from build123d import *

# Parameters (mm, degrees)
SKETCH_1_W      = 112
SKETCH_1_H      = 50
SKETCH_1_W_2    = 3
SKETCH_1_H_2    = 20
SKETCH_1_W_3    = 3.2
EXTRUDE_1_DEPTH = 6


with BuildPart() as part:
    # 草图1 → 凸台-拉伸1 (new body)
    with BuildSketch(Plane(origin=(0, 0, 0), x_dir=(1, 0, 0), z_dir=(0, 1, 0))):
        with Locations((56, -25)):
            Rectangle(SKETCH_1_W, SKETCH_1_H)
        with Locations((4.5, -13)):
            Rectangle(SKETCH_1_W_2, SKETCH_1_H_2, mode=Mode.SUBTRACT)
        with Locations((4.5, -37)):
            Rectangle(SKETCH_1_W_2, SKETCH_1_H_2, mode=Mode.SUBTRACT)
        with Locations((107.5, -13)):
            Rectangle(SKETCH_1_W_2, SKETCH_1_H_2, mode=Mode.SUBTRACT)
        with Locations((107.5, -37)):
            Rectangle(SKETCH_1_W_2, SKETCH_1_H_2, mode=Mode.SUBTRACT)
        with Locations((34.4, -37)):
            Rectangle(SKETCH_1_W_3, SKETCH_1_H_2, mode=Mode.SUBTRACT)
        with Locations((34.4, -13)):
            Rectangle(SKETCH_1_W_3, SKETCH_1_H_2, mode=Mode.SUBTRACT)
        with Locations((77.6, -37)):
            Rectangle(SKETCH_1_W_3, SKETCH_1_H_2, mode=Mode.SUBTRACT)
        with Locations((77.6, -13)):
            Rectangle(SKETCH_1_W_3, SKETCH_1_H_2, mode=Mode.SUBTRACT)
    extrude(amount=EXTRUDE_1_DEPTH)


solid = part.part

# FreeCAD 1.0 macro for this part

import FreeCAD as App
import Part
import Sketcher
from FreeCAD import Vector
Q = App.Units.Quantity

doc = App.newDocument("Part")
body = doc.addObject("PartDesign::Body", "Body")

sketch1 = body.newObject("Sketcher::SketchObject", "Sketch")
sketch1.AttachmentSupport = (doc.getObject("XZ_Plane"), [""])
sketch1.MapMode = "FlatFace"
sketch1.addGeometry([
    Part.LineSegment(Vector(0, 0, 0), Vector(0, 50, 0)),
    Part.LineSegment(Vector(0, 50, 0), Vector(112, 50, 0)),
    Part.LineSegment(Vector(112, 50, 0), Vector(112, 0, 0)),
    Part.LineSegment(Vector(112, 0, 0), Vector(0, 0, 0)),
    Part.LineSegment(Vector(6, 47, 0), Vector(3, 47, 0)),
    Part.LineSegment(Vector(3, 47, 0), Vector(3, 27, 0)),
    Part.LineSegment(Vector(3, 27, 0), Vector(6, 27, 0)),
    Part.LineSegment(Vector(6, 27, 0), Vector(6, 47, 0)),
    Part.LineSegment(Vector(36, 47, 0), Vector(32.8, 47, 0)),
    Part.LineSegment(Vector(32.8, 47, 0), Vector(32.8, 27, 0)),
    Part.LineSegment(Vector(32.8, 27, 0), Vector(36, 27, 0)),
    Part.LineSegment(Vector(36, 27, 0), Vector(36, 47, 0)),
    Part.LineSegment(Vector(79.2, 47, 0), Vector(76, 47, 0)),
    Part.LineSegment(Vector(76, 47, 0), Vector(76, 27, 0)),
    Part.LineSegment(Vector(76, 27, 0), Vector(79.2, 27, 0)),
    Part.LineSegment(Vector(79.2, 27, 0), Vector(79.2, 47, 0)),
    Part.LineSegment(Vector(109, 47, 0), Vector(106, 47, 0)),
    Part.LineSegment(Vector(106, 47, 0), Vector(106, 27, 0)),
    Part.LineSegment(Vector(106, 27, 0), Vector(109, 27, 0)),
    Part.LineSegment(Vector(109, 27, 0), Vector(109, 47, 0)),
    Part.LineSegment(Vector(6, 23, 0), Vector(3, 23, 0)),
    Part.LineSegment(Vector(3, 23, 0), Vector(3, 3, 0)),
    Part.LineSegment(Vector(3, 3, 0), Vector(6, 3, 0)),
    Part.LineSegment(Vector(6, 3, 0), Vector(6, 23, 0)),
    Part.LineSegment(Vector(36, 23, 0), Vector(32.8, 23, 0)),
    Part.LineSegment(Vector(32.8, 23, 0), Vector(32.8, 3, 0)),
    Part.LineSegment(Vector(32.8, 3, 0), Vector(36, 3, 0)),
    Part.LineSegment(Vector(36, 3, 0), Vector(36, 23, 0)),
    Part.LineSegment(Vector(79.2, 23, 0), Vector(76, 23, 0)),
    Part.LineSegment(Vector(76, 23, 0), Vector(76, 3, 0)),
    Part.LineSegment(Vector(76, 3, 0), Vector(79.2, 3, 0)),
    Part.LineSegment(Vector(79.2, 3, 0), Vector(79.2, 23, 0)),
    Part.LineSegment(Vector(109, 23, 0), Vector(106, 23, 0)),
    Part.LineSegment(Vector(106, 23, 0), Vector(106, 3, 0)),
    Part.LineSegment(Vector(106, 3, 0), Vector(109, 3, 0)),
    Part.LineSegment(Vector(109, 3, 0), Vector(109, 23, 0)),
], False)
sketch1.addConstraint([
    Sketcher.Constraint("Coincident", 0, 2, 1, 1),
    Sketcher.Constraint("Coincident", 1, 2, 2, 1),
    Sketcher.Constraint("Coincident", 2, 2, 3, 1),
    Sketcher.Constraint("Coincident", 3, 2, 0, 1),
    Sketcher.Constraint("Coincident", 4, 2, 5, 1),
    Sketcher.Constraint("Coincident", 5, 2, 6, 1),
    Sketcher.Constraint("Coincident", 6, 2, 7, 1),
    Sketcher.Constraint("Coincident", 7, 2, 4, 1),
    Sketcher.Constraint("Coincident", 8, 2, 9, 1),
    Sketcher.Constraint("Coincident", 9, 2, 10, 1),
    Sketcher.Constraint("Coincident", 10, 2, 11, 1),
    Sketcher.Constraint("Coincident", 11, 2, 8, 1),
    Sketcher.Constraint("Coincident", 12, 2, 13, 1),
    Sketcher.Constraint("Coincident", 13, 2, 14, 1),
    Sketcher.Constraint("Coincident", 14, 2, 15, 1),
    Sketcher.Constraint("Coincident", 15, 2, 12, 1),
    Sketcher.Constraint("Coincident", 16, 2, 17, 1),
    Sketcher.Constraint("Coincident", 17, 2, 18, 1),
    Sketcher.Constraint("Coincident", 18, 2, 19, 1),
    Sketcher.Constraint("Coincident", 19, 2, 16, 1),
    Sketcher.Constraint("Coincident", 20, 2, 21, 1),
    Sketcher.Constraint("Coincident", 21, 2, 22, 1),
    Sketcher.Constraint("Coincident", 22, 2, 23, 1),
    Sketcher.Constraint("Coincident", 23, 2, 20, 1),
    Sketcher.Constraint("Coincident", 24, 2, 25, 1),
    Sketcher.Constraint("Coincident", 25, 2, 26, 1),
    Sketcher.Constraint("Coincident", 26, 2, 27, 1),
    Sketcher.Constraint("Coincident", 27, 2, 24, 1),
    Sketcher.Constraint("Coincident", 28, 2, 29, 1),
    Sketcher.Constraint("Coincident", 29, 2, 30, 1),
    Sketcher.Constraint("Coincident", 30, 2, 31, 1),
    Sketcher.Constraint("Coincident", 31, 2, 28, 1),
    Sketcher.Constraint("Coincident", 32, 2, 33, 1),
    Sketcher.Constraint("Coincident", 33, 2, 34, 1),
    Sketcher.Constraint("Coincident", 34, 2, 35, 1),
    Sketcher.Constraint("Coincident", 35, 2, 32, 1),
    Sketcher.Constraint("Vertical", 0),
    Sketcher.Constraint("Horizontal", 1),
    Sketcher.Constraint("Vertical", 2),
    Sketcher.Constraint("Horizontal", 3),
    Sketcher.Constraint("Horizontal", 4),
    Sketcher.Constraint("Vertical", 5),
    Sketcher.Constraint("Horizontal", 6),
    Sketcher.Constraint("Vertical", 7),
    Sketcher.Constraint("Horizontal", 8),
    Sketcher.Constraint("Vertical", 9),
    Sketcher.Constraint("Horizontal", 10),
    Sketcher.Constraint("Vertical", 11),
    Sketcher.Constraint("Horizontal", 12),
    Sketcher.Constraint("Vertical", 13),
    Sketcher.Constraint("Horizontal", 14),
    Sketcher.Constraint("Vertical", 15),
    Sketcher.Constraint("Horizontal", 16),
    Sketcher.Constraint("Vertical", 17),
    Sketcher.Constraint("Horizontal", 18),
    Sketcher.Constraint("Vertical", 19),
    Sketcher.Constraint("Horizontal", 20),
    Sketcher.Constraint("Vertical", 21),
    Sketcher.Constraint("Horizontal", 22),
    Sketcher.Constraint("Vertical", 23),
    Sketcher.Constraint("Horizontal", 24),
    Sketcher.Constraint("Vertical", 25),
    Sketcher.Constraint("Horizontal", 26),
    Sketcher.Constraint("Vertical", 27),
    Sketcher.Constraint("Horizontal", 28),
    Sketcher.Constraint("Vertical", 29),
    Sketcher.Constraint("Horizontal", 30),
    Sketcher.Constraint("Vertical", 31),
    Sketcher.Constraint("Horizontal", 32),
    Sketcher.Constraint("Vertical", 33),
    Sketcher.Constraint("Horizontal", 34),
    Sketcher.Constraint("Vertical", 35),
    Sketcher.Constraint("Coincident", 3, 2, -1, 1),
    Sketcher.Constraint("Horizontal", 7, 2, 8, 2),
    Sketcher.Constraint("Horizontal", 6, 2, 9, 2),
    Sketcher.Constraint("Horizontal", 11, 2, 12, 2),
    Sketcher.Constraint("Horizontal", 10, 2, 13, 2),
    Sketcher.Constraint("Horizontal", 15, 2, 16, 2),
    Sketcher.Constraint("Horizontal", 14, 2, 17, 2),
    Sketcher.Constraint("Horizontal", 23, 2, 24, 2),
    Sketcher.Constraint("Horizontal", 22, 2, 25, 2),
    Sketcher.Constraint("Horizontal", 27, 2, 28, 2),
    Sketcher.Constraint("Horizontal", 26, 2, 29, 2),
    Sketcher.Constraint("Horizontal", 31, 2, 32, 2),
    Sketcher.Constraint("Horizontal", 30, 2, 33, 2),
    Sketcher.Constraint("Vertical", 5, 2, 20, 2),
    Sketcher.Constraint("Vertical", 7, 2, 22, 2),
    Sketcher.Constraint("Vertical", 9, 2, 24, 2),
    Sketcher.Constraint("Vertical", 11, 2, 26, 2),
    Sketcher.Constraint("Vertical", 13, 2, 28, 2),
    Sketcher.Constraint("Vertical", 15, 2, 30, 2),
    Sketcher.Constraint("Vertical", 17, 2, 32, 2),
    Sketcher.Constraint("Vertical", 19, 2, 34, 2),
    Sketcher.Constraint("Equal", 10, 12),
    Sketcher.Constraint("Equal", 6, 16),
    Sketcher.Constraint("Equal", 19, 21),
    Sketcher.Constraint("DistanceX", 1, 1, 1, 2, Q("112 mm")),
    Sketcher.Constraint("DistanceX", 4, 2, 4, 1, Q("3 mm")),
    Sketcher.Constraint("DistanceY", 0, 1, 0, 2, Q("50 mm")),
    Sketcher.Constraint("DistanceY", 5, 2, 5, 1, Q("20 mm")),
    Sketcher.Constraint("DistanceX", 8, 2, 8, 1, Q("3.2 mm")),
    Sketcher.Constraint("DistanceX", -1, 1, 4, 2, Q("3 mm")),
    Sketcher.Constraint("DistanceY", -1, 1, 4, 2, Q("47 mm")),
    Sketcher.Constraint("DistanceX", -1, 1, 10, 2, Q("36 mm")),
    Sketcher.Constraint("DistanceX", -1, 1, 12, 2, Q("76 mm")),
    Sketcher.Constraint("DistanceX", -1, 1, 16, 2, Q("106 mm")),
    Sketcher.Constraint("DistanceY", -1, 1, 20, 2, Q("23 mm")),
])
pad1 = body.newObject("PartDesign::Pad", "Pad")
pad1.Profile = sketch1
pad1.Length = 6
pad1.Reversed = True

doc.recompute()
